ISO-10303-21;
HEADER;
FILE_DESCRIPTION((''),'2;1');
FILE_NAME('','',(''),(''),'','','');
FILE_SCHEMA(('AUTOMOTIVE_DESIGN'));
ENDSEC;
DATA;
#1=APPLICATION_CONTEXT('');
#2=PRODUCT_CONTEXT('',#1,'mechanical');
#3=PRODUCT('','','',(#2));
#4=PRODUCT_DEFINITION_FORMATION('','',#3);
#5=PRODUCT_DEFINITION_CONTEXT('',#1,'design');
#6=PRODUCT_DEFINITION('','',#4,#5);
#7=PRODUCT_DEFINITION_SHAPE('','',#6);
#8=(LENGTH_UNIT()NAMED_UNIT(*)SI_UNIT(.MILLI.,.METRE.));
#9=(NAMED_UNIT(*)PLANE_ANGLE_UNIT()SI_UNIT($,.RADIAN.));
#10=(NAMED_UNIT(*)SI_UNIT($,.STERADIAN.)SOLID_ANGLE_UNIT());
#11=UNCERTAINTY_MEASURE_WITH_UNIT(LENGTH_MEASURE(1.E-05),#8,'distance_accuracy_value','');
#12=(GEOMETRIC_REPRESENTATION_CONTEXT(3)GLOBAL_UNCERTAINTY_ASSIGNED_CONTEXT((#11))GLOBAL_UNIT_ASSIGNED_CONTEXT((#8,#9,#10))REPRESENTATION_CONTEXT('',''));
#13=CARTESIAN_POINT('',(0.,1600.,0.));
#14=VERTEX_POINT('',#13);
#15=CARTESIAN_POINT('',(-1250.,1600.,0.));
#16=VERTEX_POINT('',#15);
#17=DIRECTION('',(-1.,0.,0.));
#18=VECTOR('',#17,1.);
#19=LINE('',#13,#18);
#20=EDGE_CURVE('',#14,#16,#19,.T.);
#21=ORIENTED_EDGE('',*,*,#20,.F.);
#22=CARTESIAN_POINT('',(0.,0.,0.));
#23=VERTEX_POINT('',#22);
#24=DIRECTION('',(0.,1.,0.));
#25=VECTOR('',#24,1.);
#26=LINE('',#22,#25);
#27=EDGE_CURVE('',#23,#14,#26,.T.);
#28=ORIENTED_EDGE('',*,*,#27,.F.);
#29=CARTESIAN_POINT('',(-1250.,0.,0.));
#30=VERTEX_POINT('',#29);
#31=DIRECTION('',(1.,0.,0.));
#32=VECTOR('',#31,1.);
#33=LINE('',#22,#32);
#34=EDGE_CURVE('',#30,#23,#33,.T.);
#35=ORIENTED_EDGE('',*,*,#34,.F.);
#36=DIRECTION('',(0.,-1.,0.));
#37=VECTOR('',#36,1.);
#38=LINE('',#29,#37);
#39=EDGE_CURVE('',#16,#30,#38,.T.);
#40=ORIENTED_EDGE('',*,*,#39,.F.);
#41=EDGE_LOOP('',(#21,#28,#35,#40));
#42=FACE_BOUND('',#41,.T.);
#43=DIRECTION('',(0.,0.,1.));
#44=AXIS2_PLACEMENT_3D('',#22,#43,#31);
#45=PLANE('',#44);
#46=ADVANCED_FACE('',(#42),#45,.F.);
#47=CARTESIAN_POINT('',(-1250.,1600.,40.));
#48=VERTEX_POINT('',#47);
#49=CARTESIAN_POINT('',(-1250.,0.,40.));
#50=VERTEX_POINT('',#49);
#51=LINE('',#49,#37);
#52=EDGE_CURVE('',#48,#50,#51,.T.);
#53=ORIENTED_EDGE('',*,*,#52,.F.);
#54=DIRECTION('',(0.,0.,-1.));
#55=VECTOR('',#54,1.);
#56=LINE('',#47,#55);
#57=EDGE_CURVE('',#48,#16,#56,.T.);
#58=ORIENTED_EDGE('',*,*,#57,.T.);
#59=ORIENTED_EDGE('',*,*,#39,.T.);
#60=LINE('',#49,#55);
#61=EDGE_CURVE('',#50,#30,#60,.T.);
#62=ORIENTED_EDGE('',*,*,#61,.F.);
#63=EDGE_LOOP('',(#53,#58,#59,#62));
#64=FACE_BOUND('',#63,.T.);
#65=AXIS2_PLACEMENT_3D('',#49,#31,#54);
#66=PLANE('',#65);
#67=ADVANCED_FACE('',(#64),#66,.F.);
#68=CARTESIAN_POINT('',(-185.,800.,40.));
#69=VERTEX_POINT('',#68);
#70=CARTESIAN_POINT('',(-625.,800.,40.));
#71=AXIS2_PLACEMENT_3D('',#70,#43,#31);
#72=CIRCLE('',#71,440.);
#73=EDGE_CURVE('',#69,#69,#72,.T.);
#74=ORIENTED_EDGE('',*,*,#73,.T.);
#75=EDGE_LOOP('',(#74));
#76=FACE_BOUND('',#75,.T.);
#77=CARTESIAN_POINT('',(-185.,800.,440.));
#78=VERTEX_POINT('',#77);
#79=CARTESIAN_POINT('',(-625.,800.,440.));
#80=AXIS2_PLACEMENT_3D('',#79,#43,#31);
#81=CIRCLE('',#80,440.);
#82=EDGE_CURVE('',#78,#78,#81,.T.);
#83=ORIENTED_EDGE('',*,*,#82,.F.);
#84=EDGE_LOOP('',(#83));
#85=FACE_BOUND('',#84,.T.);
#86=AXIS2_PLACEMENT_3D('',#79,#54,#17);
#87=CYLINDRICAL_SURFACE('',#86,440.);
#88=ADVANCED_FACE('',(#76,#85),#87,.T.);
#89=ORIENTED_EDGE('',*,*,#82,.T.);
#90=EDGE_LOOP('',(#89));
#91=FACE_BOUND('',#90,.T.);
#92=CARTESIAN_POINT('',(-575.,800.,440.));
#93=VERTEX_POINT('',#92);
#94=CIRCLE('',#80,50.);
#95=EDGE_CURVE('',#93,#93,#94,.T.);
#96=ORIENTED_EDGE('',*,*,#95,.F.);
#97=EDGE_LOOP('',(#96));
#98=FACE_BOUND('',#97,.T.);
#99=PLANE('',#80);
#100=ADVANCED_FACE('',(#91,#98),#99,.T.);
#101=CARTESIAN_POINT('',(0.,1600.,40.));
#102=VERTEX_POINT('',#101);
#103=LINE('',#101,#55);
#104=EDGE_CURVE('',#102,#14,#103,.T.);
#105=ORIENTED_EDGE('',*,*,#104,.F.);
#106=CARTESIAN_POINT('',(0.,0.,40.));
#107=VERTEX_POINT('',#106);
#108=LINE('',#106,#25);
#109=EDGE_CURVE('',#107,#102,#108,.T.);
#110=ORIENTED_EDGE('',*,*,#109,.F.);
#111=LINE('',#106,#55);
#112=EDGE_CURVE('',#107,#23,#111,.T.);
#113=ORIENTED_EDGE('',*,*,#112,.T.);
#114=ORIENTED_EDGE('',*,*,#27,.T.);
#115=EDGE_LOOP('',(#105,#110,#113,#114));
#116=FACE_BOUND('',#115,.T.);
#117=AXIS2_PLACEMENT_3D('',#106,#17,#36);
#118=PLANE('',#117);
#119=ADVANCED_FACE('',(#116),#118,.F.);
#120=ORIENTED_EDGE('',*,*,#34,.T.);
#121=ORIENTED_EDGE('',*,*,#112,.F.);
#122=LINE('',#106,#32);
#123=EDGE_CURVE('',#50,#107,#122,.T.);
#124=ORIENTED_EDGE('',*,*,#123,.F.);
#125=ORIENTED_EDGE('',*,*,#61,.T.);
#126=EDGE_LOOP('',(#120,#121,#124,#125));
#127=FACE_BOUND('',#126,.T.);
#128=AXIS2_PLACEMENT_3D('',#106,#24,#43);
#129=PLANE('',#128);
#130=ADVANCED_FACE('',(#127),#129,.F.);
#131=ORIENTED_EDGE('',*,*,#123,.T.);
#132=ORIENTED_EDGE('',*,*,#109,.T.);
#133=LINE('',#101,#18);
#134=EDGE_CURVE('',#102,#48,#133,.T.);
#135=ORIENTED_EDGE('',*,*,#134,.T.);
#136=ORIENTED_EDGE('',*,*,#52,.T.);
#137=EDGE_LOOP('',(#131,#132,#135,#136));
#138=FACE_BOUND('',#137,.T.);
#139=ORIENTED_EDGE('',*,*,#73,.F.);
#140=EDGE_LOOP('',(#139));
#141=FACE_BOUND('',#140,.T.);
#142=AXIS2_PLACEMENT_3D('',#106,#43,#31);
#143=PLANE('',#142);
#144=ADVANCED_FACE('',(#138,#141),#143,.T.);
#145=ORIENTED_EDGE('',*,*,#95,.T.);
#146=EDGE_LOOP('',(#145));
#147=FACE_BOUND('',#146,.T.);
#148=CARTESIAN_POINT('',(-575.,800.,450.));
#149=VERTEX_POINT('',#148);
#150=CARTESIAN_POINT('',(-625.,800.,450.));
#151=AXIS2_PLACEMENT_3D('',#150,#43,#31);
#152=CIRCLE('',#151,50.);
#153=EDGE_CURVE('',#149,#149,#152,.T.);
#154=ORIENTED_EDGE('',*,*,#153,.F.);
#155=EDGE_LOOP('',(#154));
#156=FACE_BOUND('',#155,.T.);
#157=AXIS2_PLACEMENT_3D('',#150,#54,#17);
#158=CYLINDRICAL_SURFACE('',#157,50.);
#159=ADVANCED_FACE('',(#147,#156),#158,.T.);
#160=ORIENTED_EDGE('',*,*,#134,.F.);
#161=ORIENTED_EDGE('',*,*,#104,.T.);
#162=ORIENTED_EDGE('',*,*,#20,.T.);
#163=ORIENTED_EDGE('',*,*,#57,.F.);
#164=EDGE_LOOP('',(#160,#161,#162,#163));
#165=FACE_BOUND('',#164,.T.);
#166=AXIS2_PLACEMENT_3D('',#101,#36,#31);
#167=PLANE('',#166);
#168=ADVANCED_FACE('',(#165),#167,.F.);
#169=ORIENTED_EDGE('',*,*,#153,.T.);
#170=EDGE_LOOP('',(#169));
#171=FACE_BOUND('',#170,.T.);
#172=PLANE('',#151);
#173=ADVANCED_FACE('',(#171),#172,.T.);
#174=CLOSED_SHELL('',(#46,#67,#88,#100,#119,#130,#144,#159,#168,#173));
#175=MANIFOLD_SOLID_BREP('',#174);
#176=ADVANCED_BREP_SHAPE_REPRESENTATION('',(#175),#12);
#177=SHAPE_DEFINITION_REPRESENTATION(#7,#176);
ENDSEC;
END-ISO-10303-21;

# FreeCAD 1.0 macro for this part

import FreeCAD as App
import Part
import Sketcher


def add_polygon(sketch, points):
    """Adds a closed chain of lines whose ends are joined by coincident constraints."""
    first, n = sketch.GeometryCount, len(points)
    for a, b in zip(points, points[1:] + points[:1]):
        sketch.addGeometry(Part.LineSegment(App.Vector(*a, 0), App.Vector(*b, 0)), False)
    for i in range(n):
        sketch.addConstraint(Sketcher.Constraint("Coincident", first + i, 2, first + (i + 1) % n, 1))

doc = App.newDocument("Part")
params = doc.addObject("Spreadsheet::Sheet", "Params")
for row, (alias, value) in enumerate([
    ("sketch1_width", "1250 mm"),
    ("sketch1_height", "1600 mm"),
    ("pad1_length", "40 mm"),
    ("sketch2_diameter", "880 mm"),
    ("pad2_length", "400 mm"),
    ("sketch3_diameter", "100 mm"),
    ("pad3_length", "10 mm"),
], start=1):
    params.set(f"A{row}", alias)
    params.set(f"B{row}", "=" + value)
    params.setAlias(f"B{row}", alias)

body = doc.addObject("PartDesign::Body", "Body")

# Sketch on XY plane
sketch1 = doc.addObject("Sketcher::SketchObject", "Sketch")
body.addObject(sketch1)
sketch1.AttachmentSupport = (doc.XY_Plane, [""])
sketch1.MapMode = "FlatFace"
add_polygon(sketch1, [(-1250, 1600), (-1250, 0), (0, 0), (0, 1600)])  # lines 0-3
sketch1.addConstraint([
    Sketcher.Constraint("Vertical", 0),
    Sketcher.Constraint("Horizontal", 1),
    Sketcher.Constraint("Vertical", 2),
    Sketcher.Constraint("Horizontal", 3),
    Sketcher.Constraint("Coincident", 1, 2, -1, 1),
    Sketcher.Constraint("DistanceX", 1, 1, 1, 2, 1250.0),
    Sketcher.Constraint("DistanceY", 0, 2, 0, 1, 1600.0),
])
sketch1.setExpression("Constraints[9]", "Params.sketch1_width")
sketch1.setExpression("Constraints[10]", "Params.sketch1_height")
pad1 = doc.addObject("PartDesign::Pad", "Pad")
body.addObject(pad1)
pad1.Profile = sketch1
pad1.setExpression("Length", "Params.pad1_length")

# Sketch on XY plane
sketch2 = doc.addObject("Sketcher::SketchObject", "Sketch001")
body.addObject(sketch2)
sketch2.AttachmentSupport = (doc.XY_Plane, [""])
sketch2.MapMode = "FlatFace"
sketch2.AttachmentOffset = App.Placement(App.Vector(0, 0, 40), App.Rotation())
sketch2.addGeometry(Part.Circle(App.Vector(-625, 800, 0), App.Vector(0, 0, 1), 440), False)
sketch2.addConstraint([
    Sketcher.Constraint("Diameter", 0, 880.0),
    Sketcher.Constraint("DistanceX", 0, 3, -1, 1, 625.0),
    Sketcher.Constraint("DistanceY", -1, 1, 0, 3, 800.0),
])
sketch2.setExpression("Constraints[0]", "Params.sketch2_diameter")
pad2 = doc.addObject("PartDesign::Pad", "Pad001")
body.addObject(pad2)
pad2.Profile = sketch2
pad2.setExpression("Length", "Params.pad2_length")

# Sketch on XY plane
sketch3 = doc.addObject("Sketcher::SketchObject", "Sketch002")
body.addObject(sketch3)
sketch3.AttachmentSupport = (doc.XY_Plane, [""])
sketch3.MapMode = "FlatFace"
sketch3.AttachmentOffset = App.Placement(App.Vector(0, 0, 440), App.Rotation())
sketch3.addGeometry(Part.Circle(App.Vector(-625, 800, 0), App.Vector(0, 0, 1), 50), False)
sketch3.addConstraint([
    Sketcher.Constraint("Diameter", 0, 100.0),
    Sketcher.Constraint("DistanceX", 0, 3, -1, 1, 625.0),
    Sketcher.Constraint("DistanceY", -1, 1, 0, 3, 800.0),
])
sketch3.setExpression("Constraints[0]", "Params.sketch3_diameter")
pad3 = doc.addObject("PartDesign::Pad", "Pad002")
body.addObject(pad3)
pad3.Profile = sketch3
pad3.setExpression("Length", "Params.pad3_length")

doc.recompute()
